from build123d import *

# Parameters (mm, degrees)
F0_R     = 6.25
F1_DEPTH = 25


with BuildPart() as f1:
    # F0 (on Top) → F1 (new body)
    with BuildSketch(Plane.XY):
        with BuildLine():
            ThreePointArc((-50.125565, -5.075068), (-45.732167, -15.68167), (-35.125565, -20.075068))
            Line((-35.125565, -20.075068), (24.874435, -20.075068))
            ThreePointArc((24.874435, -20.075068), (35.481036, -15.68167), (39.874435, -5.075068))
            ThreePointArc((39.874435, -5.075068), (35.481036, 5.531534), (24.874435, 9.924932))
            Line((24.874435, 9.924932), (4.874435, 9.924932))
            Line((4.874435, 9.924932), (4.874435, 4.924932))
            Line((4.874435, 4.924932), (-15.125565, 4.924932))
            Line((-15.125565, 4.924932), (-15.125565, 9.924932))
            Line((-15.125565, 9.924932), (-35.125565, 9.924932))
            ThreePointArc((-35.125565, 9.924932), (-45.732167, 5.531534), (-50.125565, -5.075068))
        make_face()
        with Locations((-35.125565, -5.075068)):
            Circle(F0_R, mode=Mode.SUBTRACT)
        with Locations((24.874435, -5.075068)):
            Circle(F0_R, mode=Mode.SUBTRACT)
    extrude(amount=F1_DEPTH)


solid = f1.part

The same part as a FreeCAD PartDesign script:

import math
import FreeCAD as App
import Part
import Sketcher
Q = App.Units.Quantity

doc = App.newDocument("Part")
body = doc.addObject("PartDesign::Body", "Body")

# Sketch on XY plane
sketch1 = doc.addObject("Sketcher::SketchObject", "Sketch")
body.addObject(sketch1)
sketch1.AttachmentSupport = (doc.XY_Plane, [""])
sketch1.MapMode = "FlatFace"
sketch1.addGeometry(Part.ArcOfCircle(Part.Circle(App.Vector(-35, -5, 0), App.Vector(0, 0, 1), 15), math.radians(180), math.radians(270)), False)
sketch1.addGeometry(Part.LineSegment(App.Vector(-35, -20, 0), App.Vector(25, -20, 0)), False)
sketch1.addGeometry(Part.ArcOfCircle(Part.Circle(App.Vector(25, -5, 0), App.Vector(0, 0, 1), 15), math.radians(-90), math.radians(0)), False)
sketch1.addGeometry(Part.ArcOfCircle(Part.Circle(App.Vector(25, -5, 0), App.Vector(0, 0, 1), 15), math.radians(0), math.radians(90)), False)
sketch1.addGeometry(Part.LineSegment(App.Vector(25, 10, 0), App.Vector(5, 10, 0)), False)
sketch1.addGeometry(Part.LineSegment(App.Vector(5, 10, 0), App.Vector(5, 5, 0)), False)
sketch1.addGeometry(Part.LineSegment(App.Vector(5, 5, 0), App.Vector(-15, 5, 0)), False)
sketch1.addGeometry(Part.LineSegment(App.Vector(-15, 5, 0), App.Vector(-15, 10, 0)), False)
sketch1.addGeometry(Part.LineSegment(App.Vector(-15, 10, 0), App.Vector(-35, 10, 0)), False)
sketch1.addGeometry(Part.ArcOfCircle(Part.Circle(App.Vector(-35, -5, 0), App.Vector(0, 0, 1), 15), math.radians(90), math.radians(180)), False)
sketch1.addGeometry(Part.Circle(App.Vector(-35, -5, 0), App.Vector(0, 0, 1), 6), False)
sketch1.addGeometry(Part.Circle(App.Vector(25, -5, 0), App.Vector(0, 0, 1), 6), False)
sketch1.addConstraint(Sketcher.Constraint("Tangent", 0, 2, 1, 1))
sketch1.addConstraint(Sketcher.Constraint("Tangent", 1, 2, 2, 1))
sketch1.addConstraint(Sketcher.Constraint("Tangent", 2, 2, 3, 1))
sketch1.addConstraint(Sketcher.Constraint("Tangent", 3, 2, 4, 1))
sketch1.addConstraint(Sketcher.Constraint("Coincident", 4, 2, 5, 1))
sketch1.addConstraint(Sketcher.Constraint("Coincident", 5, 2, 6, 1))
sketch1.addConstraint(Sketcher.Constraint("Coincident", 6, 2, 7, 1))
sketch1.addConstraint(Sketcher.Constraint("Coincident", 7, 2, 8, 1))
sketch1.addConstraint(Sketcher.Constraint("Tangent", 8, 2, 9, 1))
sketch1.addConstraint(Sketcher.Constraint("Tangent", 9, 2, 0, 1))
sketch1.addConstraint(Sketcher.Constraint("Horizontal", 1))
sketch1.addConstraint(Sketcher.Constraint("Horizontal", 4))
sketch1.addConstraint(Sketcher.Constraint("Vertical", 5))
sketch1.addConstraint(Sketcher.Constraint("Horizontal", 6))
sketch1.addConstraint(Sketcher.Constraint("Vertical", 7))
sketch1.addConstraint(Sketcher.Constraint("Horizontal", 8))
sketch1.addConstraint(Sketcher.Constraint("Coincident", 10, 3, 0, 3))
sketch1.addConstraint(Sketcher.Constraint("Coincident", 11, 3, 2, 3))
sketch1.addConstraint(Sketcher.Constraint("Equal", 0, 2))
sketch1.addConstraint(Sketcher.Constraint("Equal", 2, 3))
sketch1.addConstraint(Sketcher.Constraint("Equal", 3, 9))
sketch1.addConstraint(Sketcher.Constraint("Equal", 10, 11))
sketch1.addConstraint(Sketcher.Constraint("Horizontal", 11, 3, 2, 2))
sketch1.addConstraint(Sketcher.Constraint("Horizontal", 2, 2, 9, 2))
sketch1.addConstraint(Sketcher.Constraint("Equal", 4, 6))
sketch1.addConstraint(Sketcher.Constraint("Equal", 6, 8))
sketch1.addConstraint(Sketcher.Constraint("Radius", 0, Q("14.999999 mm")))
sketch1.addConstraint(Sketcher.Constraint("Diameter", 10, Q("12.5 mm")))
sketch1.addConstraint(Sketcher.Constraint("DistanceX", 1, 1, 1, 2, Q("60 mm")))
sketch1.addConstraint(Sketcher.Constraint("DistanceY", 5, 2, 5, 1, Q("5 mm")))
sketch1.addConstraint(Sketcher.Constraint("DistanceY", 0, 3, -1, 1, Q("5.075069 mm")))
sketch1.addConstraint(Sketcher.Constraint("DistanceX", 0, 3, -1, 1, Q("35.125566 mm")))
pad1 = doc.addObject("PartDesign::Pad", "Pad")
body.addObject(pad1)
pad1.Profile = sketch1
pad1.Length = 25

doc.recompute()
